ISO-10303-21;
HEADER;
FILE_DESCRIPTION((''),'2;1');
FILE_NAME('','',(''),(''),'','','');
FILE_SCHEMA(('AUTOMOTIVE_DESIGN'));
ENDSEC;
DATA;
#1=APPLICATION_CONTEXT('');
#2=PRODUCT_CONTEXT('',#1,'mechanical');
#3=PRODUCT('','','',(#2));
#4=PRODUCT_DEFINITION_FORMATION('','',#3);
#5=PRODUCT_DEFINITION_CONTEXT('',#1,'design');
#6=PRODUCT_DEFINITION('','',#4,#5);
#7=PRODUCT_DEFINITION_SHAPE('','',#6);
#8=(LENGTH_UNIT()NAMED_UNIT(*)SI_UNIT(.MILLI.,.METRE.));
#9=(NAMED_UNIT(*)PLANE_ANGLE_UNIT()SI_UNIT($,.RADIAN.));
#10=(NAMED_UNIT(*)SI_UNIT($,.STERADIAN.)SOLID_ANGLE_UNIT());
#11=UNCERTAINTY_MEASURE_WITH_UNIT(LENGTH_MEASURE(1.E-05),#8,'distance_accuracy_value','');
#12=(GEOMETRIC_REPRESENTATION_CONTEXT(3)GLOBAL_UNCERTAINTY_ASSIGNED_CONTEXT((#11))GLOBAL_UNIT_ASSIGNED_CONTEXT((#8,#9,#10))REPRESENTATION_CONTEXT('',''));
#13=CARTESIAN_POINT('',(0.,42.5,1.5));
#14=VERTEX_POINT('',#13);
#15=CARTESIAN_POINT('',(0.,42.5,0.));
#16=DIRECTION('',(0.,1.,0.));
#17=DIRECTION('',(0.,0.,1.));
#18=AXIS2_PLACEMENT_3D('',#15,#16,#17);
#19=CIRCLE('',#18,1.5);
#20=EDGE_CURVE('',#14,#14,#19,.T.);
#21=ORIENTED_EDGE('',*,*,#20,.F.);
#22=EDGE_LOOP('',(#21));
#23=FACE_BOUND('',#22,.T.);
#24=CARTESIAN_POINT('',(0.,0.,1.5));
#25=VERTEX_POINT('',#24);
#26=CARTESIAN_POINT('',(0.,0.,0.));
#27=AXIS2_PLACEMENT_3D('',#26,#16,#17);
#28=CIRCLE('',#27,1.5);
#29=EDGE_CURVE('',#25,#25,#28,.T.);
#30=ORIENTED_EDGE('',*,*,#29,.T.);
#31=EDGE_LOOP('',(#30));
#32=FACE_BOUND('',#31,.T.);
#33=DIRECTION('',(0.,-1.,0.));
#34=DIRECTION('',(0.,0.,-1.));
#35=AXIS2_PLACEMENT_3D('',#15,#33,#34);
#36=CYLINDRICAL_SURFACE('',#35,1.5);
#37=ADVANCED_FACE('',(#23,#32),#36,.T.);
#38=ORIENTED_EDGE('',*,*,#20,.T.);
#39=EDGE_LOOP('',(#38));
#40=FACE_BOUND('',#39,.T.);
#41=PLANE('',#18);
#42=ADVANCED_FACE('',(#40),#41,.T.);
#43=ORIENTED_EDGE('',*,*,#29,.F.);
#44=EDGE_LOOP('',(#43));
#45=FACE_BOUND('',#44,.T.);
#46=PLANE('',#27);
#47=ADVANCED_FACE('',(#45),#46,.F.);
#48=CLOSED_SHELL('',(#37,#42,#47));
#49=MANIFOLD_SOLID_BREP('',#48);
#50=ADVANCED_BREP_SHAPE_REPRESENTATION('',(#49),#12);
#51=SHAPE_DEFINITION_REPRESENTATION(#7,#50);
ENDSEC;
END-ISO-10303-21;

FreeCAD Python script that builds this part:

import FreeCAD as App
import Part
import Sketcher
Q = App.Units.Quantity

doc = App.newDocument("Part")
body = doc.addObject("PartDesign::Body", "Body")

sketch1 = body.newObject("Sketcher::SketchObject", "Sketch")
sketch1.AttachmentSupport = (doc.getObject("XZ_Plane"), [""])
sketch1.MapMode = "FlatFace"
sketch1.addGeometry(Part.Circle(App.Vector(0, 0, 0), App.Vector(0, 0, 1), 1.5), False)
sketch1.addConstraint([
    Sketcher.Constraint("Coincident", 0, 3, -1, 1),
    Sketcher.Constraint("Diameter", 0, Q("3 mm")),
])
pad1 = body.newObject("PartDesign::Pad", "Pad")
pad1.Profile = sketch1
pad1.Length = 42.5
pad1.Reversed = True

doc.recompute()
